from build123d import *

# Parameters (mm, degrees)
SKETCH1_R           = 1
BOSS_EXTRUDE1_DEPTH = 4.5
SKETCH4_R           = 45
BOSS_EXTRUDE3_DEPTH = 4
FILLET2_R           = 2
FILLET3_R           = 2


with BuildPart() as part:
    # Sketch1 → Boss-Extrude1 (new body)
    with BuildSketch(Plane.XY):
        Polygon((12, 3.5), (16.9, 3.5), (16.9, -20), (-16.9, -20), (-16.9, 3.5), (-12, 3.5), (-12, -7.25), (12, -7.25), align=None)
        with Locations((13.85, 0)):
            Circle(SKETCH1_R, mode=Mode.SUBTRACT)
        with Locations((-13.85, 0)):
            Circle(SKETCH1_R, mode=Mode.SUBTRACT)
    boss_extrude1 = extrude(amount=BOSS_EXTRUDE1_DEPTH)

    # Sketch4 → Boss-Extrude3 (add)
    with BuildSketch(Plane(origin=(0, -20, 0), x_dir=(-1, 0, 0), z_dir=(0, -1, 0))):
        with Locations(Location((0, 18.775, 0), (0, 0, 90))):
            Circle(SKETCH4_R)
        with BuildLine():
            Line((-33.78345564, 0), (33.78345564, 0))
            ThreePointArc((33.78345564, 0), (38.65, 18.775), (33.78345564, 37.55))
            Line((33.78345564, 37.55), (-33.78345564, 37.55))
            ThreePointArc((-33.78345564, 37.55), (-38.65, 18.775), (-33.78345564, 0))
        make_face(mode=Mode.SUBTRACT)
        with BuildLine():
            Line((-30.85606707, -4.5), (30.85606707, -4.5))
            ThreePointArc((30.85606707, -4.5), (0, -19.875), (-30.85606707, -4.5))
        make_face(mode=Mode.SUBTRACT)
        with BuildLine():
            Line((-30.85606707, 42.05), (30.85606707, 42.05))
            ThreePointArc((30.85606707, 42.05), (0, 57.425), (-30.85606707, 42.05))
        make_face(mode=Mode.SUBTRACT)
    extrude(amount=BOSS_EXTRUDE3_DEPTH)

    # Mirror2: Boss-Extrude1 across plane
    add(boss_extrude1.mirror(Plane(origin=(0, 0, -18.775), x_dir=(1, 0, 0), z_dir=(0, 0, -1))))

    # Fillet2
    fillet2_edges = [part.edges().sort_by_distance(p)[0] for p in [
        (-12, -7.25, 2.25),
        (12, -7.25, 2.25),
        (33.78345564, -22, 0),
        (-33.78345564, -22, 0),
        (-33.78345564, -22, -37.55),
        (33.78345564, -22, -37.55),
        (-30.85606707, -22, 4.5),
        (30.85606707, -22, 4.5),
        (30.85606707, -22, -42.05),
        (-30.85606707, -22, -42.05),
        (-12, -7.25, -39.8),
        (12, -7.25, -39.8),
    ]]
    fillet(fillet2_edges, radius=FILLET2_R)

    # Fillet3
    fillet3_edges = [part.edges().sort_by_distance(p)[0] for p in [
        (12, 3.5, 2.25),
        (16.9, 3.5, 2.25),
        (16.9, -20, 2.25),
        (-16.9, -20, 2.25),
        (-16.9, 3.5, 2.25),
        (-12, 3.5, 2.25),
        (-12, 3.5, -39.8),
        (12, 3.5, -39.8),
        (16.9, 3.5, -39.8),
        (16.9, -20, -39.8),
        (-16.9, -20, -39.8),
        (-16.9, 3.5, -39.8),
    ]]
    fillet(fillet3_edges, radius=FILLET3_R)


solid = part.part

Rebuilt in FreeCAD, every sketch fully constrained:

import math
import FreeCAD as App
import Part
import Sketcher
Q = App.Units.Quantity


def edges_at(feature, points):
    """Names of the edges that pass closest to the given points."""
    edges = feature.Shape.Edges
    near = lambda p: min(range(len(edges)), key=lambda i: edges[i].distToShape(Part.Vertex(*p))[0])
    return sorted({f"Edge{near(p) + 1}" for p in points})

doc = App.newDocument("Part")
body = doc.addObject("PartDesign::Body", "Body")

# Sketch on XY plane
sketch1 = body.newObject("Sketcher::SketchObject", "Sketch")
sketch1.AttachmentSupport = (doc.getObject("XY_Plane"), [""])
sketch1.MapMode = "FlatFace"
sketch1.addGeometry([
    Part.LineSegment(App.Vector(16.9, 3.5, 0), App.Vector(12, 3.5, 0)),  # 0
    Part.LineSegment(App.Vector(12, 3.5, 0), App.Vector(12, -7.2, 0)),  # 1
    Part.LineSegment(App.Vector(12, -7.2, 0), App.Vector(-12, -7.2, 0)),  # 2
    Part.LineSegment(App.Vector(-12, -7.2, 0), App.Vector(-12, 3.5, 0)),  # 3
    Part.LineSegment(App.Vector(-12, 3.5, 0), App.Vector(-16.9, 3.5, 0)),  # 4
    Part.LineSegment(App.Vector(-16.9, 3.5, 0), App.Vector(-16.9, -20, 0)),  # 5
    Part.LineSegment(App.Vector(-16.9, -20, 0), App.Vector(16.9, -20, 0)),  # 6
    Part.LineSegment(App.Vector(16.9, -20, 0), App.Vector(16.9, 3.5, 0)),  # 7
    Part.Circle(App.Vector(13.8, 0, 0), App.Vector(0, 0, 1), 1),  # 8
    Part.Circle(App.Vector(-13.8, 0, 0), App.Vector(0, 0, 1), 1),  # 9
], False)
sketch1.addConstraint([
    Sketcher.Constraint("Coincident", 0, 2, 1, 1),
    Sketcher.Constraint("Coincident", 1, 2, 2, 1),
    Sketcher.Constraint("Coincident", 2, 2, 3, 1),
    Sketcher.Constraint("Coincident", 3, 2, 4, 1),
    Sketcher.Constraint("Coincident", 4, 2, 5, 1),
    Sketcher.Constraint("Coincident", 5, 2, 6, 1),
    Sketcher.Constraint("Coincident", 6, 2, 7, 1),
    Sketcher.Constraint("Coincident", 7, 2, 0, 1),
    Sketcher.Constraint("Horizontal", 0),
    Sketcher.Constraint("Vertical", 1),
    Sketcher.Constraint("Horizontal", 2),
    Sketcher.Constraint("Vertical", 3),
    Sketcher.Constraint("Horizontal", 4),
    Sketcher.Constraint("Vertical", 5),
    Sketcher.Constraint("Horizontal", 6),
    Sketcher.Constraint("Vertical", 7),
    Sketcher.Constraint("Equal", 8, 9),
    Sketcher.Constraint("Symmetric", 8, 3, 9, 3, -1, 1),
    Sketcher.Constraint("Symmetric", 0, 2, 3, 2, -2),
    Sketcher.Constraint("PointOnObject", 8, 3, -1),
    Sketcher.Constraint("Equal", 0, 4),
    Sketcher.Constraint("Diameter", 8, Q("2 mm")),
    Sketcher.Constraint("DistanceX", 2, 2, 2, 1, Q("24 mm")),
    Sketcher.Constraint("DistanceX", 0, 2, 0, 1, Q("4.9 mm")),
    Sketcher.Constraint("DistanceY", 5, 2, 5, 1, Q("23.5 mm")),
    Sketcher.Constraint("DistanceY", 5, 2, -1, 1, Q("20 mm")),
    Sketcher.Constraint("DistanceY", 1, 2, 1, 1, Q("10.75 mm")),
    Sketcher.Constraint("DistanceX", 9, 3, 8, 3, Q("27.7 mm")),
])
pad1 = body.newObject("PartDesign::Pad", "Pad")
pad1.Profile = sketch1
pad1.Length = 4.5

# Sketch on XZ plane
sketch2 = body.newObject("Sketcher::SketchObject", "Sketch001")
sketch2.AttachmentSupport = (doc.getObject("XZ_Plane"), [""])
sketch2.MapMode = "FlatFace"
sketch2.AttachmentOffset = App.Placement(App.Vector(0, 0, 20), App.Rotation())
sketch2.addGeometry([
    Part.Circle(App.Vector(0, -19, 0), App.Vector(0, 0, 1), 45),  # 0
    Part.ArcOfCircle(Part.Circle(App.Vector(0, -19, 0), App.Vector(0, 0, 1), 39), math.radians(37), math.radians(143)),  # 1
    Part.LineSegment(App.Vector(31, 4, 0), App.Vector(-31, 4, 0)),  # 2
    Part.LineSegment(App.Vector(-34, 0, 0), App.Vector(34, 0, 0)),  # 3
    Part.ArcOfCircle(Part.Circle(App.Vector(0, -19, 0), App.Vector(0, 0, 1), 39), math.radians(-29), math.radians(29)),  # 4
    Part.LineSegment(App.Vector(34, -38, 0), App.Vector(-34, -38, 0)),  # 5
    Part.ArcOfCircle(Part.Circle(App.Vector(0, -19, 0), App.Vector(0, 0, 1), 39), math.radians(151), math.radians(209)),  # 6
    Part.LineSegment(App.Vector(-31, -42, 0), App.Vector(31, -42, 0)),  # 7
    Part.ArcOfCircle(Part.Circle(App.Vector(0, -19, 0), App.Vector(0, 0, 1), 39), math.radians(-143), math.radians(-37)),  # 8
], False)
sketch2.addConstraint([
    Sketcher.Constraint("Coincident", 1, 1, 2, 1),
    Sketcher.Constraint("Coincident", 2, 2, 1, 2),
    Sketcher.Constraint("Coincident", 3, 2, 4, 2),
    Sketcher.Constraint("Coincident", 4, 1, 5, 1),
    Sketcher.Constraint("Coincident", 5, 2, 6, 2),
    Sketcher.Constraint("Coincident", 6, 1, 3, 1),
    Sketcher.Constraint("Coincident", 7, 1, 8, 1),
    Sketcher.Constraint("Coincident", 8, 2, 7, 2),
    Sketcher.Constraint("Horizontal", 2),
    Sketcher.Constraint("Horizontal", 3),
    Sketcher.Constraint("Horizontal", 5),
    Sketcher.Constraint("Horizontal", 7),
    Sketcher.Constraint("Coincident", 1, 3, 0, 3),
    Sketcher.Constraint("Coincident", 4, 3, 0, 3),
    Sketcher.Constraint("Coincident", 6, 3, 0, 3),
    Sketcher.Constraint("Coincident", 8, 3, 0, 3),
    Sketcher.Constraint("Equal", 1, 4),
    Sketcher.Constraint("Equal", 4, 6),
    Sketcher.Constraint("Equal", 6, 8),
    Sketcher.Constraint("Symmetric", 3, 2, 6, 1, -1, 1),
    Sketcher.Constraint("Vertical", 3, 2, 4, 1),
    Sketcher.Constraint("Vertical", 2, 2, 7, 1),
    Sketcher.Constraint("Diameter", 0, Q("90 mm")),
    Sketcher.Constraint("Radius", 1, Q("38.65 mm")),
    Sketcher.Constraint("DistanceY", -1, 1, 1, 1, Q("4.5 mm")),
    Sketcher.Constraint("DistanceY", 4, 1, -1, 1, Q("37.55 mm")),
])
pad2 = body.newObject("PartDesign::Pad", "Pad001")
pad2.Profile = sketch2
pad2.Length = 4
doc.recompute()

datumplane = body.newObject("PartDesign::Plane", "DatumPlane")
datumplane.AttachmentSupport = (doc.getObject("XY_Plane"), [""])
datumplane.MapMode = "FlatFace"
datumplane.AttachmentOffset = App.Placement(App.Vector(0, 0, -18.775), App.Rotation())
mirrored = body.newObject("PartDesign::Mirrored", "Mirrored")
mirrored.Originals = [pad1]
mirrored.MirrorPlane = (datumplane, [""])
body.Tip = mirrored
doc.recompute()

fillet = body.newObject("PartDesign::Fillet", "Fillet")
fillet.Base = (mirrored, edges_at(mirrored, [
    (-12, -7.25, 2.25),
    (12, -7.25, 2.25),
    (33.783, -22, 0),
    (-33.783, -22, 0),
    (-33.783, -22, -37.55),
    (33.783, -22, -37.55),
    (-30.856, -22, 4.5),
    (30.856, -22, 4.5),
    (30.856, -22, -42.05),
    (-30.856, -22, -42.05),
    (-12, -7.25, -39.8),
    (12, -7.25, -39.8),
]))
fillet.Radius = 2
doc.recompute()

fillet2 = body.newObject("PartDesign::Fillet", "Fillet001")
fillet2.Base = (fillet, edges_at(fillet, [
    (12, 3.5, 2.25),
    (16.9, 3.5, 2.25),
    (16.9, -20, 2.25),
    (-16.9, -20, 2.25),
    (-16.9, 3.5, 2.25),
    (-12, 3.5, 2.25),
    (-12, 3.5, -39.8),
    (12, 3.5, -39.8),
    (16.9, 3.5, -39.8),
    (16.9, -20, -39.8),
    (-16.9, -20, -39.8),
    (-16.9, 3.5, -39.8),
]))
fillet2.Radius = 2

doc.recompute()
